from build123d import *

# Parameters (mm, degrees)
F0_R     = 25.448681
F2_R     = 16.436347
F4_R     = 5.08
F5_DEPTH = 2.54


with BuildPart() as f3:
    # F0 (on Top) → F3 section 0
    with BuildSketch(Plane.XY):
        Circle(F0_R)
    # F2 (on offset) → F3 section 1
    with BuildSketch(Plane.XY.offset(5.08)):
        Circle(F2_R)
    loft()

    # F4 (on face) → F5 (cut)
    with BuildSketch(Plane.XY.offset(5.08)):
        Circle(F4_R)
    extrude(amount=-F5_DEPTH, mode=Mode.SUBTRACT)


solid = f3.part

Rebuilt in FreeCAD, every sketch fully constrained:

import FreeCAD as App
import Part
import Sketcher

V = App.Vector
Q = App.Units.Quantity

doc = App.newDocument("Part")
body = doc.addObject("PartDesign::Body", "Body")

sketch1 = body.newObject("Sketcher::SketchObject", "Sketch")
sketch1.AttachmentSupport = (doc.getObject("XY_Plane"), [""])
sketch1.MapMode = "FlatFace"
sketch1.addGeometry(Part.Circle(V(0, 0, 0), V(0, 0, 1), 25.448681), False)
sketch1.addConstraint(Sketcher.Constraint("Coincident", 0, 3, -1, 1))
sketch1.addConstraint(Sketcher.Constraint("Diameter", 0, 50.897362))

sketch2 = body.newObject("Sketcher::SketchObject", "Sketch001")
sketch2.AttachmentSupport = (doc.getObject("XY_Plane"), [""])
sketch2.MapMode = "FlatFace"
sketch2.AttachmentOffset = App.Placement(V(0, 0, 0.2 * 25.4), App.Rotation())
sketch2.addGeometry(Part.Circle(V(0, 0, 0), V(0, 0, 1), 16.436347), False)
sketch2.addConstraint(Sketcher.Constraint("Coincident", 0, 3, -1, 1))
sketch2.addConstraint(Sketcher.Constraint("Diameter", 0, 32.872694))

additiveloft = body.newObject("PartDesign::AdditiveLoft", "AdditiveLoft")
additiveloft.Profile = sketch1
additiveloft.Sections = [sketch2]

sketch3 = body.newObject("Sketcher::SketchObject", "Sketch002")
sketch3.AttachmentSupport = (doc.getObject("XY_Plane"), [""])
sketch3.MapMode = "FlatFace"
sketch3.AttachmentOffset = App.Placement(V(0, 0, 0.2 * 25.4), App.Rotation())
sketch3.addGeometry(Part.Circle(V(0, 0, 0), V(0, 0, 1), 5.08), False)
sketch3.addConstraint(Sketcher.Constraint("Coincident", 0, 3, -1, 1))
sketch3.addConstraint(Sketcher.Constraint("Diameter", 0, Q("0.4 in")))
pocket1 = body.newObject("PartDesign::Pocket", "Pocket")
pocket1.Profile = sketch3
pocket1.Length = Q("0.1 in")

doc.recompute()
